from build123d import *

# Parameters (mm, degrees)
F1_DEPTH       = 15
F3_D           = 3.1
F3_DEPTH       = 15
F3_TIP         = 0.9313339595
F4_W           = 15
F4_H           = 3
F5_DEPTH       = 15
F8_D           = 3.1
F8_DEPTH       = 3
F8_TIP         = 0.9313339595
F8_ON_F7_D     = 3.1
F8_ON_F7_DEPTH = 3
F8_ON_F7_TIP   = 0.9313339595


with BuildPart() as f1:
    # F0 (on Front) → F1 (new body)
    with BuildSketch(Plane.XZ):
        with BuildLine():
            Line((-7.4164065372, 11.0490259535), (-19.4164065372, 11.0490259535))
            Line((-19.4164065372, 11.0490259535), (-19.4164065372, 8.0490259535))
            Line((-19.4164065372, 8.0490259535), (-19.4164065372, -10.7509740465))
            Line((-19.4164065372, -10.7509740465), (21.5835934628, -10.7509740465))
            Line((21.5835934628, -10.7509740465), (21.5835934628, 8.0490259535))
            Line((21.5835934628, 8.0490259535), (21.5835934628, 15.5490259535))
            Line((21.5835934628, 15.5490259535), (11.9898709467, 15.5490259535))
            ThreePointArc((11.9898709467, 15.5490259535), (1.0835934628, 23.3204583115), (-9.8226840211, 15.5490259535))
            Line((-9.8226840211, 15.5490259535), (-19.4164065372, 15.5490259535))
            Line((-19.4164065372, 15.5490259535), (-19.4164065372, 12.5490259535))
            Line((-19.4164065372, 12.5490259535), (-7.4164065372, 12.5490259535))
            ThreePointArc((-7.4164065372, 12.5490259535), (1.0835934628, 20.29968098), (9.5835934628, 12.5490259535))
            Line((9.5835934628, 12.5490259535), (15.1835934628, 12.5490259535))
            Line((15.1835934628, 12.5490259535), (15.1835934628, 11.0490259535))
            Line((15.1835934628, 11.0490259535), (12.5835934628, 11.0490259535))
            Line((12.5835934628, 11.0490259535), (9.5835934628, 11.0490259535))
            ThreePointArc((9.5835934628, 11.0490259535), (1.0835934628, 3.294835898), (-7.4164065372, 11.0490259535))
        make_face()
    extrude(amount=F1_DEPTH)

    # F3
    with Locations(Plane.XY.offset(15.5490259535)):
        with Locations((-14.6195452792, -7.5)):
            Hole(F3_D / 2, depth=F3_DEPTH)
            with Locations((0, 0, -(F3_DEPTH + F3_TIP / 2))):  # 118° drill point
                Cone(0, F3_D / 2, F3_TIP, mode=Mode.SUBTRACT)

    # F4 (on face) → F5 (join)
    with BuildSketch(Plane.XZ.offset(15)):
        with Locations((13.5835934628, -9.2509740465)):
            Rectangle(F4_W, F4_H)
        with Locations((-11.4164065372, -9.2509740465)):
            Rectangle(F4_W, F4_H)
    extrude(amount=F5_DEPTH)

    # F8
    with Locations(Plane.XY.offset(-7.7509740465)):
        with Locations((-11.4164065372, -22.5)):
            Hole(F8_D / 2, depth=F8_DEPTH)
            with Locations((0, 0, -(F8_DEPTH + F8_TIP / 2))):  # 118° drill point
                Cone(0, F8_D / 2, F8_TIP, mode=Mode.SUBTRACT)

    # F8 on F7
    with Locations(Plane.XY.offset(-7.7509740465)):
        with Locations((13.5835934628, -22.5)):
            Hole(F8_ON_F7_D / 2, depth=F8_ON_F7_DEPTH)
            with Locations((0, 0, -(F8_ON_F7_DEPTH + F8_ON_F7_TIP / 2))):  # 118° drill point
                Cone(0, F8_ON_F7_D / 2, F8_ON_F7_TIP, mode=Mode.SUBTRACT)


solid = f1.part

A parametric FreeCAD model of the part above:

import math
import FreeCAD as App
import Part
import Sketcher
Q = App.Units.Quantity


def add_polygon(sketch, points):
    """Adds a closed chain of lines whose ends are joined by coincident constraints."""
    first, n = sketch.GeometryCount, len(points)
    for a, b in zip(points, points[1:] + points[:1]):
        sketch.addGeometry(Part.LineSegment(App.Vector(*a, 0), App.Vector(*b, 0)), False)
    for i in range(n):
        sketch.addConstraint(Sketcher.Constraint("Coincident", first + i, 2, first + (i + 1) % n, 1))

doc = App.newDocument("Part")
body = doc.addObject("PartDesign::Body", "Body")

sketch1 = body.newObject("Sketcher::SketchObject", "Sketch")
sketch1.AttachmentSupport = (doc.getObject("XZ_Plane"), [""])
sketch1.MapMode = "FlatFace"
sketch1.addGeometry([
    Part.LineSegment(App.Vector(-7.416407, 11.049026, 0), App.Vector(-19.416407, 11.049026, 0)),
    Part.LineSegment(App.Vector(-19.416407, 11.049026, 0), App.Vector(-19.416407, -10.750974, 0)),
    Part.LineSegment(App.Vector(-19.416407, -10.750974, 0), App.Vector(21.583593, -10.750974, 0)),
    Part.LineSegment(App.Vector(21.583593, -10.750974, 0), App.Vector(21.583593, 15.549026, 0)),
    Part.LineSegment(App.Vector(21.583593, 15.549026, 0), App.Vector(11.989871, 15.549026, 0)),
    Part.ArcOfCircle(Part.Circle(App.Vector(1.083593, 11.781913, 0), App.Vector(0, 0, 1), 11.538545), math.radians(19.05531), math.radians(160.94469)),
    Part.LineSegment(App.Vector(-9.822684, 15.549026, 0), App.Vector(-19.416407, 15.549026, 0)),
    Part.LineSegment(App.Vector(-19.416407, 15.549026, 0), App.Vector(-19.416407, 12.549026, 0)),
    Part.LineSegment(App.Vector(-19.416407, 12.549026, 0), App.Vector(-7.416407, 12.549026, 0)),
    Part.ArcOfCircle(Part.Circle(App.Vector(1.083593, 11.763457, 0), App.Vector(0, 0, 1), 8.536224), math.radians(5.280269), math.radians(174.719731)),
    Part.LineSegment(App.Vector(9.583593, 12.549026, 0), App.Vector(15.183593, 12.549026, 0)),
    Part.LineSegment(App.Vector(15.183593, 12.549026, 0), App.Vector(15.183593, 11.049026, 0)),
    Part.LineSegment(App.Vector(15.183593, 11.049026, 0), App.Vector(9.583593, 11.049026, 0)),
    Part.ArcOfCircle(Part.Circle(App.Vector(1.083593, 11.830702, 0), App.Vector(0, 0, 1), 8.535867), math.radians(-174.745747), math.radians(-5.254253)),
], False)
sketch1.addConstraint([
    Sketcher.Constraint("Coincident", 0, 2, 1, 1),
    Sketcher.Constraint("Coincident", 1, 2, 2, 1),
    Sketcher.Constraint("Coincident", 2, 2, 3, 1),
    Sketcher.Constraint("Coincident", 3, 2, 4, 1),
    Sketcher.Constraint("Coincident", 4, 2, 5, 1),
    Sketcher.Constraint("Coincident", 5, 2, 6, 1),
    Sketcher.Constraint("Coincident", 6, 2, 7, 1),
    Sketcher.Constraint("Coincident", 7, 2, 8, 1),
    Sketcher.Constraint("Coincident", 8, 2, 9, 2),
    Sketcher.Constraint("Coincident", 9, 1, 10, 1),
    Sketcher.Constraint("Coincident", 10, 2, 11, 1),
    Sketcher.Constraint("Coincident", 11, 2, 12, 1),
    Sketcher.Constraint("Coincident", 12, 2, 13, 2),
    Sketcher.Constraint("Coincident", 13, 1, 0, 1),
    Sketcher.Constraint("Horizontal", 0),
    Sketcher.Constraint("Vertical", 1),
    Sketcher.Constraint("Horizontal", 2),
    Sketcher.Constraint("Vertical", 3),
    Sketcher.Constraint("Horizontal", 4),
    Sketcher.Constraint("Horizontal", 6),
    Sketcher.Constraint("Vertical", 7),
    Sketcher.Constraint("Horizontal", 8),
    Sketcher.Constraint("Horizontal", 10),
    Sketcher.Constraint("Vertical", 11),
    Sketcher.Constraint("Horizontal", 12),
    Sketcher.Constraint("Horizontal", 4, 2, 5, 2),
    Sketcher.Constraint("Horizontal", 8, 2, 9, 1),
    Sketcher.Constraint("Horizontal", 0, 2, 11, 2),
    Sketcher.Constraint("Vertical", 5, 3, 9, 3),
    Sketcher.Constraint("Vertical", 9, 3, 13, 3),
    Sketcher.Constraint("Vertical", 1, 2, 6, 2),
    Sketcher.Constraint("Vertical", 9, 1, 12, 2),
    Sketcher.Constraint("Equal", 4, 6),
    Sketcher.Constraint("DistanceX", 0, 2, 0, 1, Q("12 mm")),
    Sketcher.Constraint("DistanceX", 2, 1, 2, 2, Q("41 mm")),
    Sketcher.Constraint("DistanceY", 7, 2, 7, 1, Q("3 mm")),
    Sketcher.Constraint("DistanceX", 10, 1, 10, 2, Q("5.6 mm")),
    Sketcher.Constraint("DistanceY", 1, 2, 1, 1, Q("21.8 mm")),
    Sketcher.Constraint("DistanceY", 3, 1, 3, 2, Q("26.3 mm")),
    Sketcher.Constraint("Radius", 5, Q("11.538545 mm")),
    Sketcher.Constraint("Radius", 9, Q("8.536224 mm")),
    Sketcher.Constraint("Radius", 13, Q("8.535867 mm")),
    Sketcher.Constraint("DistanceX", 4, 2, 4, 1, Q("9.593723 mm")),
    Sketcher.Constraint("DistanceX", -1, 1, 4, 2, Q("11.989871 mm")),
    Sketcher.Constraint("DistanceY", -1, 1, 5, 3, Q("11.781913 mm")),
])
pad1 = body.newObject("PartDesign::Pad", "Pad")
pad1.Profile = sketch1
pad1.Length = 15

sketch2 = body.newObject("Sketcher::SketchObject", "Sketch001")
sketch2.AttachmentSupport = (doc.getObject("XY_Plane"), [""])
sketch2.MapMode = "FlatFace"
sketch2.AttachmentOffset = App.Placement(App.Vector(0, 0, 15.549026), App.Rotation())
sketch2.addGeometry(Part.Circle(App.Vector(-14.619545, -7.5, 0), App.Vector(0, 0, 1), 1.55), False)
sketch2.addConstraint([
    Sketcher.Constraint("Diameter", 0, Q("3.1 mm")),
    Sketcher.Constraint("DistanceY", 0, 3, -1, 1, Q("7.5 mm")),
    Sketcher.Constraint("DistanceX", 0, 3, -1, 1, Q("14.619545 mm")),
])
doc.recompute()
hole = body.newObject("PartDesign::Hole", "Hole")
hole.Profile = sketch2
hole.ThreadType = "None"
hole.Diameter = 3.1
hole.DepthType = "Dimension"
hole.Depth = 15
hole.DrillPoint = "Angled"
hole.DrillPointAngle = 118

sketch3 = body.newObject("Sketcher::SketchObject", "Sketch002")
sketch3.AttachmentSupport = (doc.getObject("XZ_Plane"), [""])
sketch3.MapMode = "FlatFace"
sketch3.AttachmentOffset = App.Placement(App.Vector(0, 0, 15), App.Rotation())
add_polygon(sketch3, [(6.083593, -7.750974), (6.083593, -10.750974), (21.083593, -10.750974), (21.083593, -7.750974)])
add_polygon(sketch3, [(-18.916407, -7.750974), (-18.916407, -10.750974), (-3.916407, -10.750974), (-3.916407, -7.750974)])
sketch3.addConstraint([
    Sketcher.Constraint("Vertical", 0),
    Sketcher.Constraint("Horizontal", 1),
    Sketcher.Constraint("Vertical", 2),
    Sketcher.Constraint("Horizontal", 3),
    Sketcher.Constraint("Vertical", 4),
    Sketcher.Constraint("Horizontal", 5),
    Sketcher.Constraint("Vertical", 6),
    Sketcher.Constraint("Horizontal", 7),
    Sketcher.Constraint("Horizontal", 1, 2, 4, 2),
    Sketcher.Constraint("Horizontal", 3, 2, 6, 2),
    Sketcher.Constraint("Equal", 3, 5),
    Sketcher.Constraint("DistanceX", 1, 1, 1, 2, Q("15 mm")),
    Sketcher.Constraint("DistanceY", 0, 2, 0, 1, Q("3 mm")),
    Sketcher.Constraint("DistanceX", 4, 2, 0, 2, Q("25 mm")),
    Sketcher.Constraint("DistanceX", -1, 1, 0, 2, Q("6.083593 mm")),
    Sketcher.Constraint("DistanceY", 0, 2, -1, 1, Q("10.750974 mm")),
])
pad2 = body.newObject("PartDesign::Pad", "Pad001")
pad2.Profile = sketch3
pad2.Length = 15

sketch4 = body.newObject("Sketcher::SketchObject", "Sketch003")
sketch4.AttachmentSupport = (doc.getObject("XY_Plane"), [""])
sketch4.MapMode = "FlatFace"
sketch4.AttachmentOffset = App.Placement(App.Vector(0, 0, -7.750974), App.Rotation())
sketch4.addGeometry(Part.Circle(App.Vector(-11.416407, -22.5, 0), App.Vector(0, 0, 1), 1.55), False)
sketch4.addConstraint([
    Sketcher.Constraint("Diameter", 0, Q("3.1 mm")),
    Sketcher.Constraint("DistanceY", 0, 3, -1, 1, Q("22.5 mm")),
    Sketcher.Constraint("DistanceX", 0, 3, -1, 1, Q("11.416407 mm")),
])
doc.recompute()
hole2 = body.newObject("PartDesign::Hole", "Hole001")
hole2.Profile = sketch4
hole2.ThreadType = "None"
hole2.Diameter = 3.1
hole2.DepthType = "Dimension"
hole2.Depth = 3
hole2.DrillPoint = "Angled"
hole2.DrillPointAngle = 118

sketch5 = body.newObject("Sketcher::SketchObject", "Sketch004")
sketch5.AttachmentSupport = (doc.getObject("XY_Plane"), [""])
sketch5.MapMode = "FlatFace"
sketch5.AttachmentOffset = App.Placement(App.Vector(0, 0, -7.750974), App.Rotation())
sketch5.addGeometry(Part.Circle(App.Vector(13.583593, -22.5, 0), App.Vector(0, 0, 1), 1.55), False)
sketch5.addConstraint([
    Sketcher.Constraint("Diameter", 0, Q("3.1 mm")),
    Sketcher.Constraint("DistanceY", 0, 3, -1, 1, Q("22.5 mm")),
    Sketcher.Constraint("DistanceX", -1, 1, 0, 3, Q("13.583593 mm")),
])
doc.recompute()
hole3 = body.newObject("PartDesign::Hole", "Hole002")
hole3.Profile = sketch5
hole3.ThreadType = "None"
hole3.Diameter = 3.1
hole3.DepthType = "Dimension"
hole3.Depth = 3
hole3.DrillPoint = "Angled"
hole3.DrillPointAngle = 118

doc.recompute()
